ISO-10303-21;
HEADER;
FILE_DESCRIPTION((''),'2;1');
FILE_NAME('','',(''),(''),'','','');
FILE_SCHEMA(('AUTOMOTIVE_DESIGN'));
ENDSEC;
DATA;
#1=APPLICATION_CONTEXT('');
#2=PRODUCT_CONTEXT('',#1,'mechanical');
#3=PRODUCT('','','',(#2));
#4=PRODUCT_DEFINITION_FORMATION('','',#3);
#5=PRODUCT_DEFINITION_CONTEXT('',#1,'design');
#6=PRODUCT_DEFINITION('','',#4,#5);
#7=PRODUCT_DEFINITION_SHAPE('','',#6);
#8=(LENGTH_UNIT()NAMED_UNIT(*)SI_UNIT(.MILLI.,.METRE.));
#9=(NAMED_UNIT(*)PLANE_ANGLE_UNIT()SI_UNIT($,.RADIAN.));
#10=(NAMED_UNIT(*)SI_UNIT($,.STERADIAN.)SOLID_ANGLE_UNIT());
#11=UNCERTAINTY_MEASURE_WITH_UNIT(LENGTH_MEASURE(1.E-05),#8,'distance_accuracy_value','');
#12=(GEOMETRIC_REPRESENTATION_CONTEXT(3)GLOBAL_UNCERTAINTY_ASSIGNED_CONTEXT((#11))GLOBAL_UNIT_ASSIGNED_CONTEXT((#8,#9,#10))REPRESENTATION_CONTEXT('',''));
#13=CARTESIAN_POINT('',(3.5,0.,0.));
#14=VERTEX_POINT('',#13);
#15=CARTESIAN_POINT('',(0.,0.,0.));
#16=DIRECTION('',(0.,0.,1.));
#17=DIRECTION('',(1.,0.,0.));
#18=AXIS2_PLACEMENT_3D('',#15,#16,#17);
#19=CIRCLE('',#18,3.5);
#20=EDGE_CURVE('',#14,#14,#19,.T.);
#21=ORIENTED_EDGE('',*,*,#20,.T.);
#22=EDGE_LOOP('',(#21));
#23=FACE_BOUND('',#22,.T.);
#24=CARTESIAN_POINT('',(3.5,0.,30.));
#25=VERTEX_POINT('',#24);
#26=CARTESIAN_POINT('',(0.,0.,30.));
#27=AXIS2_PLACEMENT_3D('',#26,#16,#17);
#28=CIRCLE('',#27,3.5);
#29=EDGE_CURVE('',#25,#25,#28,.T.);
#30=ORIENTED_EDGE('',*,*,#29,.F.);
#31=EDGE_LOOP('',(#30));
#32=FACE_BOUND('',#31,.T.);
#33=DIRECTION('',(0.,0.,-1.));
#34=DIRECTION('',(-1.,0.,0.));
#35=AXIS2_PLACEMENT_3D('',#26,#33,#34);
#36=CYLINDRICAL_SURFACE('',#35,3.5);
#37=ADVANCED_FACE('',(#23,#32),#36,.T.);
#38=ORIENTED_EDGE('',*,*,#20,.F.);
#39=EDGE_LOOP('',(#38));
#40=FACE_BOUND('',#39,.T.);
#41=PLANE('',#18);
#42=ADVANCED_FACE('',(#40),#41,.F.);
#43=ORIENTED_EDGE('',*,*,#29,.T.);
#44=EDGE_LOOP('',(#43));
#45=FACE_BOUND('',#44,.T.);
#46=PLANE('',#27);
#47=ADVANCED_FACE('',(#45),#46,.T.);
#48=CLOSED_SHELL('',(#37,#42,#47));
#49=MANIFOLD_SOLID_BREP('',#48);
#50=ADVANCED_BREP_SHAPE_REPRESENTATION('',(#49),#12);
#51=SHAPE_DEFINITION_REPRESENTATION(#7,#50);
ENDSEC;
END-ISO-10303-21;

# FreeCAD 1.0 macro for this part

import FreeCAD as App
import Part
import Sketcher
Q = App.Units.Quantity

doc = App.newDocument("Part")
params = doc.addObject("Spreadsheet::Sheet", "Params")
for row, (alias, value) in enumerate([
    ("sketch1_diameter", "7 mm"),
    ("pad1_length", "30 mm"),
], start=1):
    params.set(f"A{row}", alias)
    params.set(f"B{row}", "=" + value)
    params.setAlias(f"B{row}", alias)

body = doc.addObject("PartDesign::Body", "Body")

sketch1 = doc.addObject("Sketcher::SketchObject", "Sketch")
body.addObject(sketch1)
sketch1.AttachmentSupport = (doc.XY_Plane, [""])
sketch1.MapMode = "FlatFace"
sketch1.addGeometry(Part.Circle(App.Vector(0, 0, 0), App.Vector(0, 0, 1), 3.5), False)
sketch1.addConstraint(Sketcher.Constraint("Coincident", 0, 3, -1, 1))
sketch1.addConstraint(Sketcher.Constraint("Diameter", 0, Q("7 mm")))
sketch1.setExpression("Constraints[1]", "Params.sketch1_diameter")
pad1 = doc.addObject("PartDesign::Pad", "Pad")
body.addObject(pad1)
pad1.Profile = sketch1
pad1.setExpression("Length", "Params.pad1_length")

doc.recompute()
